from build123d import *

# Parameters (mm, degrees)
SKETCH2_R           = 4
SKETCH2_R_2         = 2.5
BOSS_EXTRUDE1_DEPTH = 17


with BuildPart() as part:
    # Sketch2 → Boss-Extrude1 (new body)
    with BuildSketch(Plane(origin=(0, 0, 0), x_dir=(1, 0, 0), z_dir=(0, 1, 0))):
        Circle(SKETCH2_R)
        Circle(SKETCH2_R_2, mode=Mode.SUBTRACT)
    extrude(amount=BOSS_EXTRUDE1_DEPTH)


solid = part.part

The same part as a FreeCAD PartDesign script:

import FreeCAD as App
import Part
import Sketcher
from FreeCAD import Vector
Q = App.Units.Quantity

doc = App.newDocument("Part")
params = doc.addObject("Spreadsheet::Sheet", "Params")
for row, (alias, value) in enumerate([
    ("sketch1_diameter", "8 mm"),
    ("sketch1_diameter2", "5 mm"),
    ("pad1_length", "17 mm"),
], start=1):
    params.set(f"A{row}", alias)
    params.set(f"B{row}", "=" + value)
    params.setAlias(f"B{row}", alias)

body = doc.addObject("PartDesign::Body", "Body")

# Sketch on XZ plane
sketch1 = body.newObject("Sketcher::SketchObject", "Sketch")
sketch1.AttachmentSupport = (doc.getObject("XZ_Plane"), [""])
sketch1.MapMode = "FlatFace"
sketch1.addGeometry([
    Part.Circle(Vector(0, 0, 0), Vector(0, 0, 1), 4),
    Part.Circle(Vector(0, 0, 0), Vector(0, 0, 1), 2.5),
], False)
sketch1.addConstraint([
    Sketcher.Constraint("Coincident", 0, 3, -1, 1),
    Sketcher.Constraint("Coincident", 1, 3, -1, 1),
    Sketcher.Constraint("Diameter", 0, Q("8 mm")),
    Sketcher.Constraint("Diameter", 1, Q("5 mm")),
])
sketch1.setExpression("Constraints[2]", "Params.sketch1_diameter")
sketch1.setExpression("Constraints[3]", "Params.sketch1_diameter2")
pad1 = body.newObject("PartDesign::Pad", "Pad")
pad1.Profile = sketch1
pad1.setExpression("Length", "Params.pad1_length")
pad1.Reversed = True

doc.recompute()
